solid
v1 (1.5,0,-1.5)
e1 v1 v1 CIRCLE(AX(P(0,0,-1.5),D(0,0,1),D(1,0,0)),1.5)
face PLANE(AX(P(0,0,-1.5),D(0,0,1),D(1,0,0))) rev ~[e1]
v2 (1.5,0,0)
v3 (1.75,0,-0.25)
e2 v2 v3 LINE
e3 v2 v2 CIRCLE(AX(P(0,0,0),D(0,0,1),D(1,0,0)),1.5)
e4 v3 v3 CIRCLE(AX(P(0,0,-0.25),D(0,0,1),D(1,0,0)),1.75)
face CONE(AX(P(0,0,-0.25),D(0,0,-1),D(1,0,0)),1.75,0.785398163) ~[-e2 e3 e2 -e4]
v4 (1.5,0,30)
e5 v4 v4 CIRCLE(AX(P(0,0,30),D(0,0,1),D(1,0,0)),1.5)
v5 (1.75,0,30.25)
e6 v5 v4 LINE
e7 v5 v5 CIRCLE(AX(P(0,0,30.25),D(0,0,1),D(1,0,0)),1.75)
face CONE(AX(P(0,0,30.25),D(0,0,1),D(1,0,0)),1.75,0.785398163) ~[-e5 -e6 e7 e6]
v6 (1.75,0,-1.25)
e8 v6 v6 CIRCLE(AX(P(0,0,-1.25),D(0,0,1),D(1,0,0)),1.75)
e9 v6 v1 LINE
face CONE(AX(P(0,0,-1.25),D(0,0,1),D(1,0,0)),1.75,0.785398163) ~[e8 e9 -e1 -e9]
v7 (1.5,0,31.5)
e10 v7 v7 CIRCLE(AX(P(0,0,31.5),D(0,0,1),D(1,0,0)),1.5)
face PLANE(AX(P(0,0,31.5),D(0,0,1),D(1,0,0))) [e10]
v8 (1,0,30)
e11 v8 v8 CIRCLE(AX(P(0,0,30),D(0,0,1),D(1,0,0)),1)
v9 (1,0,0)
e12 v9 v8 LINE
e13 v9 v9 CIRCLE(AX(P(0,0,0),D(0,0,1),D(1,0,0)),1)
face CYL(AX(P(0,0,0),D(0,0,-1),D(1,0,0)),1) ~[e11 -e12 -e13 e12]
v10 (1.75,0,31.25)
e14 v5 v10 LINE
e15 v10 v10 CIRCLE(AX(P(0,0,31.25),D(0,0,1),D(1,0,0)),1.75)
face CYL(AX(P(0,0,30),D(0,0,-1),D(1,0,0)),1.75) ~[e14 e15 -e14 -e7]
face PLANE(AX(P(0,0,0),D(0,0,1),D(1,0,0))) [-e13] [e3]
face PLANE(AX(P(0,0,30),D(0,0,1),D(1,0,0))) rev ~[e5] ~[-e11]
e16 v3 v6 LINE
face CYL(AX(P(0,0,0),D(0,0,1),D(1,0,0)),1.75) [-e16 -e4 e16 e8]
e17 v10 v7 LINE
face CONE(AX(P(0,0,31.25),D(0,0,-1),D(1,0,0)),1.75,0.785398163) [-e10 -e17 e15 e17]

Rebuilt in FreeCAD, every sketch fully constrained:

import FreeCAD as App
import Part
import Sketcher

V = App.Vector
Q = App.Units.Quantity


def edges_at(feature, points):
    """Names of the edges that pass closest to the given points."""
    edges = feature.Shape.Edges
    near = lambda p: min(range(len(edges)), key=lambda i: edges[i].distToShape(Part.Vertex(*p))[0])
    return sorted({f"Edge{near(p) + 1}" for p in points})

doc = App.newDocument("Part")
body = doc.addObject("PartDesign::Body", "Body")

# Sketch on XY plane
sketch1 = doc.addObject("Sketcher::SketchObject", "Sketch")
body.addObject(sketch1)
sketch1.AttachmentSupport = (doc.XY_Plane, [""])
sketch1.MapMode = "FlatFace"
sketch1.addGeometry(Part.Circle(V(0, 0, 0), V(0, 0, 1), 1), False)
sketch1.addConstraint([
    Sketcher.Constraint("Coincident", 0, 3, -1, 1),
    Sketcher.Constraint("Diameter", 0, Q("2 mm")),
])
pad1 = doc.addObject("PartDesign::Pad", "Pad")
body.addObject(pad1)
pad1.Profile = sketch1
pad1.Length = 30

# Sketch on XY plane
sketch2 = doc.addObject("Sketcher::SketchObject", "Sketch001")
body.addObject(sketch2)
sketch2.AttachmentSupport = (doc.XY_Plane, [""])
sketch2.MapMode = "FlatFace"
sketch2.addGeometry(Part.Circle(V(0, 0, 0), V(0, 0, 1), 1.8), False)
sketch2.addConstraint([
    Sketcher.Constraint("Coincident", 0, 3, -1, 1),
    Sketcher.Constraint("Diameter", 0, Q("3.5 mm")),
])
pad2 = doc.addObject("PartDesign::Pad", "Pad001")
body.addObject(pad2)
pad2.Profile = sketch2
pad2.Length = 1.5
pad2.Reversed = True

# Sketch on XY plane
sketch3 = doc.addObject("Sketcher::SketchObject", "Sketch002")
body.addObject(sketch3)
sketch3.AttachmentSupport = (doc.XY_Plane, [""])
sketch3.MapMode = "FlatFace"
sketch3.AttachmentOffset = App.Placement(V(0, 0, 30), App.Rotation())
sketch3.addGeometry(Part.Circle(V(0, 0, 0), V(0, 0, 1), 1.8), False)
sketch3.addConstraint([
    Sketcher.Constraint("Coincident", 0, 3, -1, 1),
    Sketcher.Constraint("Diameter", 0, Q("3.5 mm")),
])
pad3 = doc.addObject("PartDesign::Pad", "Pad002")
body.addObject(pad3)
pad3.Profile = sketch3
pad3.Length = 1.5
doc.recompute()

chamfer = doc.addObject("PartDesign::Chamfer", "Chamfer")
body.addObject(chamfer)
chamfer.Base = (pad3, edges_at(pad3, [
    (-1.75, 0, 31.5),
    (-1.75, 0, -1.5),
    (-1.75, 0, 30),
    (-1.75, 0, 0),
]))
chamfer.Size = 0.25

doc.recompute()
